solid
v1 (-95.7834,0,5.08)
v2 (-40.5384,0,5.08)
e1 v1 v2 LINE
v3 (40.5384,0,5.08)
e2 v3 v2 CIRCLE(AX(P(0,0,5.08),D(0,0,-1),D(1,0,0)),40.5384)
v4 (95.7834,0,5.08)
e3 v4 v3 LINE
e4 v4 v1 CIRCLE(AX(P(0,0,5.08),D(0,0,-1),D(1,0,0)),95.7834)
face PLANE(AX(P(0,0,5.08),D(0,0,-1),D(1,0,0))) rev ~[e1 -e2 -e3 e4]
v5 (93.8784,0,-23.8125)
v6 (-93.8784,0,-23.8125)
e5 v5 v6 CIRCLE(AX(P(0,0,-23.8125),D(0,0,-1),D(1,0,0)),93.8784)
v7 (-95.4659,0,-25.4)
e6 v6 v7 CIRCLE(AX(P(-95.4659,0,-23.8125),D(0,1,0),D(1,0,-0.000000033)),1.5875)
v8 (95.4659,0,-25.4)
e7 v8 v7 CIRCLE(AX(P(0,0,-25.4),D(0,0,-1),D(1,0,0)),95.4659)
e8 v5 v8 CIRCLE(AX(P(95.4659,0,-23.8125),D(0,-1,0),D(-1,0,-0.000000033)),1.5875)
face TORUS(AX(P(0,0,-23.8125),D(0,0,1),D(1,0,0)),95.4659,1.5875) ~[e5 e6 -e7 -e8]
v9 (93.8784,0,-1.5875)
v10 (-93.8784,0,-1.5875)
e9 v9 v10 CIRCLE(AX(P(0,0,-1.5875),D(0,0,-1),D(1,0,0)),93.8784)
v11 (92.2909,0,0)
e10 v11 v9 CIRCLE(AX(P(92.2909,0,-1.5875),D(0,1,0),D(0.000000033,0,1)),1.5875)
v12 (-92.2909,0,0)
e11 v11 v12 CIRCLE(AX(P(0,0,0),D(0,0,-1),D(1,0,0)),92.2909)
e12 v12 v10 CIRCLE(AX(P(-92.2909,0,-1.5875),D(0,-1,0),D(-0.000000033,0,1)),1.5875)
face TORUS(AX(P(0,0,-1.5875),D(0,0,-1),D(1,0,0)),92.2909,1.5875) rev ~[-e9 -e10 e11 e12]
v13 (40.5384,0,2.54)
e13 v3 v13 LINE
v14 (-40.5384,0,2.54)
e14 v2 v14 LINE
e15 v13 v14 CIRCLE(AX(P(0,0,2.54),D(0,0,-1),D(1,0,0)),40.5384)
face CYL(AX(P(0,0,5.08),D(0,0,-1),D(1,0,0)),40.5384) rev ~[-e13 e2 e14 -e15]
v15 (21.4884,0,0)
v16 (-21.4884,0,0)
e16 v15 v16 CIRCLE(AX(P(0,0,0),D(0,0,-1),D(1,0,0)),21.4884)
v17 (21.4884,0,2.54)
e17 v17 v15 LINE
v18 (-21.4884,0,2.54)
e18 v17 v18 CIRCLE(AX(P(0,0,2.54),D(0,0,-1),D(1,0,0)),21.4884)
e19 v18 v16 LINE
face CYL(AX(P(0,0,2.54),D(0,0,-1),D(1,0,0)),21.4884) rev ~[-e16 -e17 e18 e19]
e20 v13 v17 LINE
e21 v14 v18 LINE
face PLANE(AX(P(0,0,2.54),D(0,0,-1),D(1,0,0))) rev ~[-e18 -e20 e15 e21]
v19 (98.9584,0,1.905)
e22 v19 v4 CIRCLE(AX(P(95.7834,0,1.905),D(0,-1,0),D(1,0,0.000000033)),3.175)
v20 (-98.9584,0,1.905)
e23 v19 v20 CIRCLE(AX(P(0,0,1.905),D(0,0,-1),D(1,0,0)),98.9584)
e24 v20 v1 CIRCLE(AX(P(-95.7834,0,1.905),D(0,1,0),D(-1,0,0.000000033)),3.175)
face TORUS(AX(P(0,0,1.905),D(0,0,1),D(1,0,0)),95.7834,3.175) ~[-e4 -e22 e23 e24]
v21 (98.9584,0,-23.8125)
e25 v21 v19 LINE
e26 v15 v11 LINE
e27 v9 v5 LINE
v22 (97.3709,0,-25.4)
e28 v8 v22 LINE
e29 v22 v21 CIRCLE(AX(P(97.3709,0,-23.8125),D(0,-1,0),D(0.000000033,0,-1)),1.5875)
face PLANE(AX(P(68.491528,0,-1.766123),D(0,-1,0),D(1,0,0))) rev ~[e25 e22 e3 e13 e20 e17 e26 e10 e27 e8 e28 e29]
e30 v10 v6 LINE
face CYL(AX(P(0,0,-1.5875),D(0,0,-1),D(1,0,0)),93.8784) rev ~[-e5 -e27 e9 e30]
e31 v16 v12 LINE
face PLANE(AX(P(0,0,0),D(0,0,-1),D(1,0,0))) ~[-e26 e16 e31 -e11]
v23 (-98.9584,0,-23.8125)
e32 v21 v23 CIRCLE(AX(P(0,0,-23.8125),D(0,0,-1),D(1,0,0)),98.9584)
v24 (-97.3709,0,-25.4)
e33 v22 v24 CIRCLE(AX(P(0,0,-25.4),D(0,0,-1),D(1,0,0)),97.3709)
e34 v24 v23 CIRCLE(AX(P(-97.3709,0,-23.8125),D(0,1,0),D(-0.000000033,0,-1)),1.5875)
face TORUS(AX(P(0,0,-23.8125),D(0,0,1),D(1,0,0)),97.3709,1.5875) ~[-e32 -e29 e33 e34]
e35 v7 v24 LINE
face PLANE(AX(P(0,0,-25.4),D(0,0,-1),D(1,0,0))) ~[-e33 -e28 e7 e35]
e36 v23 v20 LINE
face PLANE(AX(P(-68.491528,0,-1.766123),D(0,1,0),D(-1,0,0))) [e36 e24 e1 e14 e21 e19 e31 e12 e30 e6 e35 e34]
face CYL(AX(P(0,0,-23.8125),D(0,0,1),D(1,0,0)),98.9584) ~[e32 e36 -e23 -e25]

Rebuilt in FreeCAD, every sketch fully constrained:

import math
import FreeCAD as App
import Part
import Sketcher
from FreeCAD import Vector
Q = App.Units.Quantity

doc = App.newDocument("Part")
body = doc.addObject("PartDesign::Body", "Body")

# Sketch on XZ plane
sketch1 = body.newObject("Sketcher::SketchObject", "Sketch")
sketch1.AttachmentSupport = (doc.getObject("XZ_Plane"), [""])
sketch1.MapMode = "FlatFace"
sketch1.addGeometry([
    Part.ArcOfCircle(Part.Circle(Vector(95.8, 1.9, 0), Vector(0, 0, 1), 3.2), math.radians(0), math.radians(90)),  # 0
    Part.LineSegment(Vector(95.8, 5.1, 0), Vector(40.5, 5.1, 0)),  # 1
    Part.LineSegment(Vector(40.5, 5.1, 0), Vector(40.5, 2.5, 0)),  # 2
    Part.LineSegment(Vector(40.5, 2.5, 0), Vector(21.5, 2.5, 0)),  # 3
    Part.LineSegment(Vector(21.5, 2.5, 0), Vector(21.5, 0, 0)),  # 4
    Part.LineSegment(Vector(21.5, 0, 0), Vector(92.3, 0, 0)),  # 5
    Part.ArcOfCircle(Part.Circle(Vector(92.3, -1.6, 0), Vector(0, 0, 1), 1.6), math.radians(0), math.radians(90)),  # 6
    Part.LineSegment(Vector(93.9, -1.6, 0), Vector(93.9, -23.8, 0)),  # 7
    Part.ArcOfCircle(Part.Circle(Vector(95.5, -23.8, 0), Vector(0, 0, 1), 1.6), math.radians(-180), math.radians(-90)),  # 8
    Part.LineSegment(Vector(95.5, -25.4, 0), Vector(97.4, -25.4, 0)),  # 9
    Part.ArcOfCircle(Part.Circle(Vector(97.4, -23.8, 0), Vector(0, 0, 1), 1.6), math.radians(-90), math.radians(0)),  # 10
    Part.LineSegment(Vector(99, -23.8, 0), Vector(99, 1.9, 0)),  # 11
], False)
sketch1.addConstraint([
    Sketcher.Constraint("Tangent", 0, 2, 1, 1),
    Sketcher.Constraint("Coincident", 1, 2, 2, 1),
    Sketcher.Constraint("Coincident", 2, 2, 3, 1),
    Sketcher.Constraint("Coincident", 3, 2, 4, 1),
    Sketcher.Constraint("Coincident", 4, 2, 5, 1),
    Sketcher.Constraint("Tangent", 5, 2, 6, 2),
    Sketcher.Constraint("Tangent", 6, 1, 7, 1),
    Sketcher.Constraint("Tangent", 7, 2, 8, 1),
    Sketcher.Constraint("Tangent", 8, 2, 9, 1),
    Sketcher.Constraint("Tangent", 9, 2, 10, 1),
    Sketcher.Constraint("Tangent", 10, 2, 11, 1),
    Sketcher.Constraint("Tangent", 11, 2, 0, 1),
    Sketcher.Constraint("Horizontal", 1),
    Sketcher.Constraint("Vertical", 2),
    Sketcher.Constraint("Horizontal", 3),
    Sketcher.Constraint("Vertical", 4),
    Sketcher.Constraint("Horizontal", 5),
    Sketcher.Constraint("Vertical", 7),
    Sketcher.Constraint("Horizontal", 9),
    Sketcher.Constraint("Vertical", 11),
    Sketcher.Constraint("Equal", 6, 8),
    Sketcher.Constraint("Equal", 8, 10),
    Sketcher.Constraint("PointOnObject", 4, 2, -1),
    Sketcher.Constraint("Equal", 2, 4),
    Sketcher.Constraint("DistanceY", 2, 2, 2, 1, Q("0.1 in")),
    Sketcher.Constraint("DistanceY", 8, 2, -1, 1, Q("1 in")),
    Sketcher.Constraint("Radius", 0, Q("0.125 in")),
    Sketcher.Constraint("Radius", 6, Q("0.0625 in")),
    Sketcher.Constraint("DistanceX", 3, 2, 3, 1, Q("0.75 in")),
    Sketcher.Constraint("DistanceX", 6, 3, 10, 3, Q("0.2 in")),
    Sketcher.Constraint("DistanceX", 1, 2, 1, 1, Q("2.175 in")),
    Sketcher.Constraint("DistanceX", -1, 1, 0, 3, Q("3.771 in")),
])
revolution = body.newObject("PartDesign::Revolution", "Revolution")
revolution.Profile = sketch1
revolution.ReferenceAxis = (sketch1, ["V_Axis"])
revolution.Angle = 180
revolution.Reversed = True

doc.recompute()
